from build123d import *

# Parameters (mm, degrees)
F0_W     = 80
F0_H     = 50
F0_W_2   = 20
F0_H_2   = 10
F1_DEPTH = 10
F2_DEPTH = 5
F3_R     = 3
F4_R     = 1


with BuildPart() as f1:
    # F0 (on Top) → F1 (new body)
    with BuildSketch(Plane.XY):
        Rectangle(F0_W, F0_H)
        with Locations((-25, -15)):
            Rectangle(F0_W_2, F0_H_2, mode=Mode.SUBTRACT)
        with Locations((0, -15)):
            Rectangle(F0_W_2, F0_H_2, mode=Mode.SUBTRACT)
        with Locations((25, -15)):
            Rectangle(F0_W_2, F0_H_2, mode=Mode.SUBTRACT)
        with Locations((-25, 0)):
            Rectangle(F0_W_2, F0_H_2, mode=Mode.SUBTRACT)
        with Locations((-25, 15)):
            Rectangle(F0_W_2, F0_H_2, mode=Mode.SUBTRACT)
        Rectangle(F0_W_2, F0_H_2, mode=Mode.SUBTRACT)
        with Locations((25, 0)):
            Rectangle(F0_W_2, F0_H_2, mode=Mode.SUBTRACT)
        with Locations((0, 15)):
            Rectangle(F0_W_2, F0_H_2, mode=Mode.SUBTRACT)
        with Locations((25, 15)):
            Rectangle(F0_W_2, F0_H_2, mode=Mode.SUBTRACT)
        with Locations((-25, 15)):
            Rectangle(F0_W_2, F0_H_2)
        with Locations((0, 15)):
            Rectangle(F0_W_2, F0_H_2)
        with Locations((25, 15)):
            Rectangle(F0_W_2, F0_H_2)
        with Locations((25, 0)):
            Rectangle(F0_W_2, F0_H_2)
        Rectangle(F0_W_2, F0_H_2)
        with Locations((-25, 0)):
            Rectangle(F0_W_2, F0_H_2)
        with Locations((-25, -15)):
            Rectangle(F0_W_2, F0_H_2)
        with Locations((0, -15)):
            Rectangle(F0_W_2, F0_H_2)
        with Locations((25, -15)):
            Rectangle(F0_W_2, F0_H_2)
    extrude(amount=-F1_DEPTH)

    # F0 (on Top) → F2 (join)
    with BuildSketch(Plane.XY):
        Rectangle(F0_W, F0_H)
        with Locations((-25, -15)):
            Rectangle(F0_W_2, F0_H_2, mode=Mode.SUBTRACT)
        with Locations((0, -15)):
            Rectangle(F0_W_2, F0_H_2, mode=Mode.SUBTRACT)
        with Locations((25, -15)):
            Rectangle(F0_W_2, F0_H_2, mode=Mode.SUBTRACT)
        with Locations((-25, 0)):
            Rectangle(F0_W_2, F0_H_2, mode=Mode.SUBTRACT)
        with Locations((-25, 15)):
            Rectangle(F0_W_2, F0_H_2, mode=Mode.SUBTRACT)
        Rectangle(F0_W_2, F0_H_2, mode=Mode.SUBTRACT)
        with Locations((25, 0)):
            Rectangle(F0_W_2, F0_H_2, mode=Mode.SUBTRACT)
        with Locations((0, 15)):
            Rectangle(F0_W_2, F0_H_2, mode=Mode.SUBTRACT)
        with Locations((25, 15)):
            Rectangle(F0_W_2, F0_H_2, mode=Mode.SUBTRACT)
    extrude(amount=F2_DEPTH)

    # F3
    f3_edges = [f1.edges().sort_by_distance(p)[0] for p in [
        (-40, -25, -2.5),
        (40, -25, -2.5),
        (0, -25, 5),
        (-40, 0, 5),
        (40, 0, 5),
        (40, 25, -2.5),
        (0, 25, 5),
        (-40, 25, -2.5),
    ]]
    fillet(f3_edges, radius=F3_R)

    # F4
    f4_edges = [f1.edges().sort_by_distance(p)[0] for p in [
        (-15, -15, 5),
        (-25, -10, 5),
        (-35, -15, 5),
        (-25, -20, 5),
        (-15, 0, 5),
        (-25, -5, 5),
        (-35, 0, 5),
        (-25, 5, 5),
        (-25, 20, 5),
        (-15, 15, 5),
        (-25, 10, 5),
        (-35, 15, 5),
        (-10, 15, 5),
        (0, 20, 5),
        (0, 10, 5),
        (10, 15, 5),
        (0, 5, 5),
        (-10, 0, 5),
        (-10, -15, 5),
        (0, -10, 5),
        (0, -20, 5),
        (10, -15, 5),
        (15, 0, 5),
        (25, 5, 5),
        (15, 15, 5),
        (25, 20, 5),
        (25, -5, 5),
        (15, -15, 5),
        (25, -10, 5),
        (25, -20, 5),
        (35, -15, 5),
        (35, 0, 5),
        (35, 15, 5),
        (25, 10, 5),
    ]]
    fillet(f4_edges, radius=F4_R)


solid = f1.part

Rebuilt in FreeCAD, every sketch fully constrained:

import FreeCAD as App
import Part
import Sketcher


def edges_at(feature, points):
    """Names of the edges that pass closest to the given points."""
    edges = feature.Shape.Edges
    near = lambda p: min(range(len(edges)), key=lambda i: edges[i].distToShape(Part.Vertex(*p))[0])
    return sorted({f"Edge{near(p) + 1}" for p in points})


def add_polygon(sketch, points):
    """Adds a closed chain of lines whose ends are joined by coincident constraints."""
    first, n = sketch.GeometryCount, len(points)
    for a, b in zip(points, points[1:] + points[:1]):
        sketch.addGeometry(Part.LineSegment(App.Vector(*a, 0), App.Vector(*b, 0)), False)
    for i in range(n):
        sketch.addConstraint(Sketcher.Constraint("Coincident", first + i, 2, first + (i + 1) % n, 1))

doc = App.newDocument("Part")
body = doc.addObject("PartDesign::Body", "Body")

# Sketch on XY plane
sketch1 = body.newObject("Sketcher::SketchObject", "Sketch")
sketch1.AttachmentSupport = (doc.getObject("XY_Plane"), [""])
sketch1.MapMode = "FlatFace"
add_polygon(sketch1, [(-40, 25), (-40, -25), (40, -25), (40, 25)])  # lines 0-3
sketch1.addConstraint([
    Sketcher.Constraint("Vertical", 0),
    Sketcher.Constraint("Horizontal", 1),
    Sketcher.Constraint("Vertical", 2),
    Sketcher.Constraint("Horizontal", 3),
    Sketcher.Constraint("Symmetric", 0, 2, 2, 2, -1, 1),
    Sketcher.Constraint("DistanceX", 1, 1, 1, 2, 80.0),
    Sketcher.Constraint("DistanceY", 0, 2, 0, 1, 50.0),
])
pad1 = body.newObject("PartDesign::Pad", "Pad")
pad1.Profile = sketch1
pad1.Length = 10
pad1.Reversed = True

# Sketch on XY plane
sketch2 = body.newObject("Sketcher::SketchObject", "Sketch001")
sketch2.AttachmentSupport = (doc.getObject("XY_Plane"), [""])
sketch2.MapMode = "FlatFace"
add_polygon(sketch2, [(-40, 25), (-40, -25), (40, -25), (40, 25)])  # lines 0-3
add_polygon(sketch2, [(-15, -20), (-35, -20), (-35, -10), (-15, -10)])  # lines 4-7
add_polygon(sketch2, [(10, -20), (-10, -20), (-10, -10), (10, -10)])  # lines 8-11
add_polygon(sketch2, [(35, -20), (15, -20), (15, -10), (35, -10)])  # lines 12-15
add_polygon(sketch2, [(-15, -5), (-35, -5), (-35, 5), (-15, 5)])  # lines 16-19
add_polygon(sketch2, [(-15, 10), (-35, 10), (-35, 20), (-15, 20)])  # lines 20-23
add_polygon(sketch2, [(10, -5), (-10, -5), (-10, 5), (10, 5)])  # lines 24-27
add_polygon(sketch2, [(35, -5), (15, -5), (15, 5), (35, 5)])  # lines 28-31
add_polygon(sketch2, [(10, 10), (-10, 10), (-10, 20), (10, 20)])  # lines 32-35
add_polygon(sketch2, [(35, 10), (15, 10), (15, 20), (35, 20)])  # lines 36-39
sketch2.addConstraint([
    Sketcher.Constraint("Vertical", 0),
    Sketcher.Constraint("Horizontal", 1),
    Sketcher.Constraint("Vertical", 2),
    Sketcher.Constraint("Horizontal", 3),
    Sketcher.Constraint("Horizontal", 4),
    Sketcher.Constraint("Vertical", 5),
    Sketcher.Constraint("Horizontal", 6),
    Sketcher.Constraint("Vertical", 7),
    Sketcher.Constraint("Horizontal", 8),
    Sketcher.Constraint("Vertical", 9),
    Sketcher.Constraint("Horizontal", 10),
    Sketcher.Constraint("Vertical", 11),
    Sketcher.Constraint("Horizontal", 12),
    Sketcher.Constraint("Vertical", 13),
    Sketcher.Constraint("Horizontal", 14),
    Sketcher.Constraint("Vertical", 15),
    Sketcher.Constraint("Horizontal", 16),
    Sketcher.Constraint("Vertical", 17),
    Sketcher.Constraint("Horizontal", 18),
    Sketcher.Constraint("Vertical", 19),
    Sketcher.Constraint("Horizontal", 20),
    Sketcher.Constraint("Vertical", 21),
    Sketcher.Constraint("Horizontal", 22),
    Sketcher.Constraint("Vertical", 23),
    Sketcher.Constraint("Horizontal", 24),
    Sketcher.Constraint("Vertical", 25),
    Sketcher.Constraint("Horizontal", 26),
    Sketcher.Constraint("Vertical", 27),
    Sketcher.Constraint("Horizontal", 28),
    Sketcher.Constraint("Vertical", 29),
    Sketcher.Constraint("Horizontal", 30),
    Sketcher.Constraint("Vertical", 31),
    Sketcher.Constraint("Horizontal", 32),
    Sketcher.Constraint("Vertical", 33),
    Sketcher.Constraint("Horizontal", 34),
    Sketcher.Constraint("Vertical", 35),
    Sketcher.Constraint("Horizontal", 36),
    Sketcher.Constraint("Vertical", 37),
    Sketcher.Constraint("Horizontal", 38),
    Sketcher.Constraint("Vertical", 39),
    Sketcher.Constraint("Symmetric", 0, 2, 2, 2, -1, 1),
    Sketcher.Constraint("Symmetric", 14, 2, 20, 2, -1, 1),
    Sketcher.Constraint("Symmetric", 12, 2, 22, 2, -1, 1),
    Sketcher.Constraint("Symmetric", 24, 2, 26, 2, -1, 1),
    Sketcher.Constraint("Symmetric", 18, 2, 28, 2, -1, 1),
    Sketcher.Constraint("Symmetric", 16, 2, 30, 2, -1, 1),
    Sketcher.Constraint("Symmetric", 10, 2, 32, 2, -1, 1),
    Sketcher.Constraint("Symmetric", 8, 2, 34, 2, -1, 1),
    Sketcher.Constraint("Symmetric", 6, 2, 36, 2, -1, 1),
    Sketcher.Constraint("Symmetric", 4, 2, 38, 2, -1, 1),
    Sketcher.Constraint("Symmetric", 7, 2, 12, 2, -2),
    Sketcher.Constraint("Symmetric", 5, 2, 14, 2, -2),
    Sketcher.Constraint("Horizontal", 7, 2, 8, 2),
    Sketcher.Constraint("Horizontal", 6, 2, 9, 2),
    Sketcher.Constraint("Horizontal", 19, 2, 24, 2),
    Sketcher.Constraint("Horizontal", 18, 2, 25, 2),
    Sketcher.Constraint("Vertical", 5, 2, 16, 2),
    Sketcher.Constraint("Vertical", 7, 2, 18, 2),
    Sketcher.Constraint("Vertical", 9, 2, 24, 2),
    Sketcher.Constraint("Vertical", 11, 2, 26, 2),
    Sketcher.Constraint("Equal", 6, 8),
    Sketcher.Constraint("Equal", 15, 17),
    Sketcher.Constraint("DistanceX", 1, 1, 1, 2, 80.0),
    Sketcher.Constraint("DistanceX", 4, 2, 4, 1, 20.0),
    Sketcher.Constraint("DistanceY", 0, 2, 0, 1, 50.0),
    Sketcher.Constraint("DistanceY", 5, 1, 5, 2, 10.0),
    Sketcher.Constraint("DistanceX", 4, 2, -1, 1, 35.0),
    Sketcher.Constraint("DistanceY", 4, 2, -1, 1, 20.0),
])
pad2 = body.newObject("PartDesign::Pad", "Pad001")
pad2.Profile = sketch2
pad2.Length = 5
doc.recompute()

fillet = body.newObject("PartDesign::Fillet", "Fillet")
fillet.Base = (pad2, edges_at(pad2, [
    (-40, -25, -2.5),
    (40, -25, -2.5),
    (0, -25, 5),
    (-40, 0, 5),
    (40, 0, 5),
    (40, 25, -2.5),
    (0, 25, 5),
    (-40, 25, -2.5),
]))
fillet.Radius = 3
doc.recompute()

fillet2 = body.newObject("PartDesign::Fillet", "Fillet001")
fillet2.Base = (fillet, edges_at(fillet, [
    (-15, -15, 5),
    (-25, -10, 5),
    (-35, -15, 5),
    (-25, -20, 5),
    (-15, 0, 5),
    (-25, -5, 5),
    (-35, 0, 5),
    (-25, 5, 5),
    (-25, 20, 5),
    (-15, 15, 5),
    (-25, 10, 5),
    (-35, 15, 5),
    (-10, 15, 5),
    (0, 20, 5),
    (0, 10, 5),
    (10, 15, 5),
    (0, 5, 5),
    (-10, 0, 5),
    (-10, -15, 5),
    (0, -10, 5),
    (0, -20, 5),
    (10, -15, 5),
    (15, 0, 5),
    (25, 5, 5),
    (15, 15, 5),
    (25, 20, 5),
    (25, -5, 5),
    (15, -15, 5),
    (25, -10, 5),
    (25, -20, 5),
    (35, -15, 5),
    (35, 0, 5),
    (35, 15, 5),
    (25, 10, 5),
]))
fillet2.Radius = 1

doc.recompute()
